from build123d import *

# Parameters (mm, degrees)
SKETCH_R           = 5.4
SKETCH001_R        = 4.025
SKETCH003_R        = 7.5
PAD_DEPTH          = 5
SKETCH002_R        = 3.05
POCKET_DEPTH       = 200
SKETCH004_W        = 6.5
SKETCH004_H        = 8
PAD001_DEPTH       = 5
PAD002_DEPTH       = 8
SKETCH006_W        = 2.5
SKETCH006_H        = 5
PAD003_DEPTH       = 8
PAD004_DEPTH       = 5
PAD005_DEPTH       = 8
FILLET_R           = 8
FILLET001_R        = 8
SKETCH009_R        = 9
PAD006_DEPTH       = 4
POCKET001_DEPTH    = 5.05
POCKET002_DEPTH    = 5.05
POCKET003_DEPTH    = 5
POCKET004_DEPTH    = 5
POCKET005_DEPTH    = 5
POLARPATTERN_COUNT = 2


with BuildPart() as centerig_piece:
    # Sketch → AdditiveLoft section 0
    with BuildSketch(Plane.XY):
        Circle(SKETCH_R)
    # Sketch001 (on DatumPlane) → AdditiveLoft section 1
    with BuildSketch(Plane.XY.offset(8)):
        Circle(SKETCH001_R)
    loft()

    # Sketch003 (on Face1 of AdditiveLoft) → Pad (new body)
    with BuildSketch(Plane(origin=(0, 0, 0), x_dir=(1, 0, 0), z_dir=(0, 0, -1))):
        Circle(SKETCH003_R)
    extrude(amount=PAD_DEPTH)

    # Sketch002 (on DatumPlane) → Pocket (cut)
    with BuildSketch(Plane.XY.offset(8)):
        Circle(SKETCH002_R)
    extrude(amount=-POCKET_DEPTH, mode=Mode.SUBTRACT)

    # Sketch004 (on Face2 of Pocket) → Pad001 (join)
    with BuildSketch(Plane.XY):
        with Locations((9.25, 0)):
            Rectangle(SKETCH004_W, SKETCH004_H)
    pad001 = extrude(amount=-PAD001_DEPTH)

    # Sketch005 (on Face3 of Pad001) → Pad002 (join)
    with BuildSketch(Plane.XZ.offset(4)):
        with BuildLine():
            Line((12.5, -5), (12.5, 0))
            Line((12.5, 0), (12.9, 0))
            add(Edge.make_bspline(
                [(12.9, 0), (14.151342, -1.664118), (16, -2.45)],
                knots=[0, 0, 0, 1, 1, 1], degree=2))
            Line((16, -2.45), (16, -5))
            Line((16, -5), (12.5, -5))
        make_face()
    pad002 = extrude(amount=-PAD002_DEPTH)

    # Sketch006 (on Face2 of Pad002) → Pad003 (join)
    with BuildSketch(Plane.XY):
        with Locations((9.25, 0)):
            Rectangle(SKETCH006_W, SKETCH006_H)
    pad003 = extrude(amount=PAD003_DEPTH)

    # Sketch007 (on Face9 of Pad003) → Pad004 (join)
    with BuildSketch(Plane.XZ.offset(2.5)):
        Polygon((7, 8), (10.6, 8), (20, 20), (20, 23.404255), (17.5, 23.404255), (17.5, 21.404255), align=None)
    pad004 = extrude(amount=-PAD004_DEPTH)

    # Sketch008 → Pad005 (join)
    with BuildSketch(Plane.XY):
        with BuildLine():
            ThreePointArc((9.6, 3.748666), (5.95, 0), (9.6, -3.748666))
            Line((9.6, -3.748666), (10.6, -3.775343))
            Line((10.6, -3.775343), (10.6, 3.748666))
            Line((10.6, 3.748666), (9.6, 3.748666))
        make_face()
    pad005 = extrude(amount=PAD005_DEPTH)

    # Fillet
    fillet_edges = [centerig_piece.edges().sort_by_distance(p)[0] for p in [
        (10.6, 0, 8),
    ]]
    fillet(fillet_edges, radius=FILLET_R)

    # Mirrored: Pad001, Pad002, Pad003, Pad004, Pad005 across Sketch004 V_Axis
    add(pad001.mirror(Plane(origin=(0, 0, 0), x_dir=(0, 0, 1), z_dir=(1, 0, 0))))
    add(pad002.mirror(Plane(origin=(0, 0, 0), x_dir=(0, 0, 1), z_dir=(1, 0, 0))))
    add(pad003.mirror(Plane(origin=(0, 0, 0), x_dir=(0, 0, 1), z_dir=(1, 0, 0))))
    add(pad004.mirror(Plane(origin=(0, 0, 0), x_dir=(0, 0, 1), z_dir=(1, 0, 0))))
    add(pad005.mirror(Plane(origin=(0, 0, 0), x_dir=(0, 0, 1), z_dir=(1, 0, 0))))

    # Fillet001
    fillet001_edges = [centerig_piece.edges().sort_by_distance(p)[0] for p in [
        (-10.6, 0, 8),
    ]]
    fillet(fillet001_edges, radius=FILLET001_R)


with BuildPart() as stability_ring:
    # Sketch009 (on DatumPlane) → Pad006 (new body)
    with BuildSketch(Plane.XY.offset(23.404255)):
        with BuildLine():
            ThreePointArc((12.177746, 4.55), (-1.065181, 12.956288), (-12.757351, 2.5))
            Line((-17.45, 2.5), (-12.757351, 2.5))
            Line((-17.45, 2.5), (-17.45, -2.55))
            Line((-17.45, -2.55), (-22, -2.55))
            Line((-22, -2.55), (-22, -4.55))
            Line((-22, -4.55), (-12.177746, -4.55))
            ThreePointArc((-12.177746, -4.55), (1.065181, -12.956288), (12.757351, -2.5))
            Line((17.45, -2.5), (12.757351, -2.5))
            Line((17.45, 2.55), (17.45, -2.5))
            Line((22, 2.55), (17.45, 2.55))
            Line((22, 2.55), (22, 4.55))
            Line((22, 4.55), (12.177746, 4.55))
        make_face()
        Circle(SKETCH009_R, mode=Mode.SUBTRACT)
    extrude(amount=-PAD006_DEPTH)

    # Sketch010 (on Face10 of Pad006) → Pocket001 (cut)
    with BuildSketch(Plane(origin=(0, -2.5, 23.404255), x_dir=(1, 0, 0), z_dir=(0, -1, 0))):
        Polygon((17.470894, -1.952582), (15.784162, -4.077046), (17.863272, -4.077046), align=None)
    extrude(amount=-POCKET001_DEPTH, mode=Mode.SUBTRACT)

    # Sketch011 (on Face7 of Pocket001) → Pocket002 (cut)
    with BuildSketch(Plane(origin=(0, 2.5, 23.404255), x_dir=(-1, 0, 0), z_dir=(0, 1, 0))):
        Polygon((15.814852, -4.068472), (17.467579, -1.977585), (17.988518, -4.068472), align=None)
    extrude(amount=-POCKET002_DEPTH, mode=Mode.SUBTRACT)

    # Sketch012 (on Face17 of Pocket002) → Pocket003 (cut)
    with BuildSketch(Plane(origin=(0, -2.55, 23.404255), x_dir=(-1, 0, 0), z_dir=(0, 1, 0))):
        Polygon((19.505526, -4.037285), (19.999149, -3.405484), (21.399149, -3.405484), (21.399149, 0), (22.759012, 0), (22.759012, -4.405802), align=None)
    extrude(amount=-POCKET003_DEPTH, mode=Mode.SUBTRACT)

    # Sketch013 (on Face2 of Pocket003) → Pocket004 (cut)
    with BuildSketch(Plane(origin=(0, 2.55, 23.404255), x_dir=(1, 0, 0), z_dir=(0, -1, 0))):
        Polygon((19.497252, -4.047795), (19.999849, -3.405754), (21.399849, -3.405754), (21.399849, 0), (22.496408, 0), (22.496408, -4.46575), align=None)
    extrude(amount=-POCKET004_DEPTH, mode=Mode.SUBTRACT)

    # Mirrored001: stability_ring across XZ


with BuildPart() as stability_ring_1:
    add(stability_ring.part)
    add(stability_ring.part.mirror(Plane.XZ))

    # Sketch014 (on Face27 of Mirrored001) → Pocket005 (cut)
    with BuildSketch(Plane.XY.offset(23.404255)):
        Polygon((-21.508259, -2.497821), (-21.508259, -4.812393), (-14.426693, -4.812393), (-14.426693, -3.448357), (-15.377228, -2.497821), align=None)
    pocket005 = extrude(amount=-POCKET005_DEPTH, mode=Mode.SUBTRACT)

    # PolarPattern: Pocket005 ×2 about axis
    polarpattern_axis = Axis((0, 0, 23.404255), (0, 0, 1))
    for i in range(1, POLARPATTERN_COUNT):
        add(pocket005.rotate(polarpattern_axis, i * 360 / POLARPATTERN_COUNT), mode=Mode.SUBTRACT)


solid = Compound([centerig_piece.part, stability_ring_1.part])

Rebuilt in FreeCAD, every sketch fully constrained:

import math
import FreeCAD as App
import Part
import Sketcher


def edges_at(feature, points):
    """Names of the edges that pass closest to the given points."""
    edges = feature.Shape.Edges
    near = lambda p: min(range(len(edges)), key=lambda i: edges[i].distToShape(Part.Vertex(*p))[0])
    return sorted({f"Edge{near(p) + 1}" for p in points})


def add_polygon(sketch, points):
    """Adds a closed chain of lines whose ends are joined by coincident constraints."""
    first, n = sketch.GeometryCount, len(points)
    for a, b in zip(points, points[1:] + points[:1]):
        sketch.addGeometry(Part.LineSegment(App.Vector(*a, 0), App.Vector(*b, 0)), False)
    for i in range(n):
        sketch.addConstraint(Sketcher.Constraint("Coincident", first + i, 2, first + (i + 1) % n, 1))

doc = App.newDocument("Part")
params = doc.addObject("Spreadsheet::Sheet", "Params")
for row, (alias, value) in enumerate([
    ("sketch1_diameter", "10.8 mm"),
    ("sketch2_diameter", "8.05 mm"),
    ("sketch3_diameter", "15 mm"),
    ("pad1_length", "5 mm"),
    ("sketch4_diameter", "6.1 mm"),
    ("pocket1_length", "200 mm"),
    ("sketch5_height", "8 mm"),
    ("sketch5_width", "6.5 mm"),
    ("pad2_length", "5 mm"),
    ("sketch6_height", "5 mm"),
    ("sketch6_width", "3.5 mm"),
    ("pad3_length", "8 mm"),
    ("sketch7_height", "5 mm"),
    ("sketch7_width", "2.5 mm"),
    ("pad4_length", "8 mm"),
    ("sketch8_height", "2 mm"),
    ("sketch8_width", "3.6 mm"),
    ("sketch8_width2", "2.5 mm"),
    ("pad5_length", "5 mm"),
    ("sketch9_width", "1 mm"),
    ("sketch9_radius", "3.75 mm"),
    ("pad6_length", "8 mm"),
    ("fillet_radius", "8 mm"),
    ("fillet2_radius", "8 mm"),
    ("sketch10_diameter", "18 mm"),
    ("sketch10_radius", "13 mm"),
    ("sketch10_height", "2 mm"),
    ("sketch10_width", "4.55 mm"),
    ("sketch10_height2", "5.05 mm"),
    ("pad7_length", "4 mm"),
    ("pocket2_length", "5.05 mm"),
    ("pocket3_length", "5.05 mm"),
    ("sketch13_width", "1.4 mm"),
    ("pocket4_length", "5 mm"),
    ("sketch14_width", "1.4 mm"),
    ("pocket5_length", "5 mm"),
    ("pocket6_length", "5 mm"),
], start=1):
    params.set(f"A{row}", alias)
    params.set(f"B{row}", "=" + value)
    params.setAlias(f"B{row}", alias)

body = doc.addObject("PartDesign::Body", "Body")

sketch1 = doc.addObject("Sketcher::SketchObject", "Sketch")
body.addObject(sketch1)
sketch1.AttachmentSupport = (doc.XY_Plane, [""])
sketch1.MapMode = "FlatFace"
sketch1.addGeometry(Part.Circle(App.Vector(0, 0, 0), App.Vector(0, 0, 1), 5), False)
sketch1.addConstraint([
    Sketcher.Constraint("Coincident", 0, 3, -1, 1),
    Sketcher.Constraint("Diameter", 0, 10.8),
])
sketch1.setExpression("Constraints[1]", "Params.sketch1_diameter")

sketch2 = doc.addObject("Sketcher::SketchObject", "Sketch001")
body.addObject(sketch2)
sketch2.AttachmentSupport = (doc.XY_Plane, [""])
sketch2.MapMode = "FlatFace"
sketch2.AttachmentOffset = App.Placement(App.Vector(0, 0, 8), App.Rotation())
sketch2.addGeometry(Part.Circle(App.Vector(0, 0, 0), App.Vector(0, 0, 1), 4), False)
sketch2.addConstraint([
    Sketcher.Constraint("Coincident", 0, 3, -1, 1),
    Sketcher.Constraint("Diameter", 0, 8.05),
])
sketch2.setExpression("Constraints[1]", "Params.sketch2_diameter")

additiveloft = doc.addObject("PartDesign::AdditiveLoft", "AdditiveLoft")
body.addObject(additiveloft)
additiveloft.Profile = sketch1
additiveloft.Sections = [sketch2]

sketch3 = doc.addObject("Sketcher::SketchObject", "Sketch002")
body.addObject(sketch3)
sketch3.AttachmentSupport = (doc.XY_Plane, [""])
sketch3.MapMode = "FlatFace"
sketch3.addGeometry(Part.Circle(App.Vector(0, 0, 0), App.Vector(0, 0, 1), 8), False)
sketch3.addConstraint([
    Sketcher.Constraint("Coincident", 0, 3, -1, 1),
    Sketcher.Constraint("Diameter", 0, 15.0),
])
sketch3.setExpression("Constraints[1]", "Params.sketch3_diameter")
pad1 = doc.addObject("PartDesign::Pad", "Pad")
body.addObject(pad1)
pad1.Profile = sketch3
pad1.setExpression("Length", "Params.pad1_length")
pad1.Reversed = True

sketch4 = doc.addObject("Sketcher::SketchObject", "Sketch003")
body.addObject(sketch4)
sketch4.AttachmentSupport = (doc.XY_Plane, [""])
sketch4.MapMode = "FlatFace"
sketch4.AttachmentOffset = App.Placement(App.Vector(0, 0, 8), App.Rotation())
sketch4.addGeometry(Part.Circle(App.Vector(0, 0, 0), App.Vector(0, 0, 1), 3), False)
sketch4.addConstraint([
    Sketcher.Constraint("Coincident", 0, 3, -1, 1),
    Sketcher.Constraint("Diameter", 0, 6.1),
])
sketch4.setExpression("Constraints[1]", "Params.sketch4_diameter")
pocket1 = doc.addObject("PartDesign::Pocket", "Pocket")
body.addObject(pocket1)
pocket1.Profile = sketch4
pocket1.setExpression("Length", "Params.pocket1_length")

sketch5 = doc.addObject("Sketcher::SketchObject", "Sketch004")
body.addObject(sketch5)
sketch5.AttachmentSupport = (doc.XY_Plane, [""])
sketch5.MapMode = "FlatFace"
add_polygon(sketch5, [(6, 4), (6, -4), (12, -4), (12, 4)])
sketch5.addConstraint([
    Sketcher.Constraint("Vertical", 0),
    Sketcher.Constraint("Horizontal", 1),
    Sketcher.Constraint("Vertical", 2),
    Sketcher.Constraint("Horizontal", 3),
    Sketcher.Constraint("DistanceY", 0, 2, 0, 1, 8.0),
    Sketcher.Constraint("DistanceX", 1, 1, 1, 2, 6.5),
    Sketcher.Constraint("DistanceX", -1, 1, 0, 2, 6.0),
    Sketcher.Constraint("DistanceY", 0, 2, -1, 1, 4.0),
])
sketch5.setExpression("Constraints[8]", "Params.sketch5_height")
sketch5.setExpression("Constraints[9]", "Params.sketch5_width")
pad2 = doc.addObject("PartDesign::Pad", "Pad001")
body.addObject(pad2)
pad2.Profile = sketch5
pad2.setExpression("Length", "Params.pad2_length")
pad2.Reversed = True

sketch6 = doc.addObject("Sketcher::SketchObject", "Sketch005")
body.addObject(sketch6)
sketch6.AttachmentSupport = (doc.XZ_Plane, [""])
sketch6.MapMode = "FlatFace"
sketch6.AttachmentOffset = App.Placement(App.Vector(0, 0, 4), App.Rotation())
sketch6.addGeometry([
    Part.LineSegment(App.Vector(12.5, 0, 0), App.Vector(12.5, -5, 0)),
    Part.LineSegment(App.Vector(12.5, -5, 0), App.Vector(16, -5, 0)),
    Part.LineSegment(App.Vector(16, -5, 0), App.Vector(16, -2.45, 0)),
    Part.BSplineCurve([App.Vector(12.9, 0, 0), App.Vector(14.151342, -1.664118, 0), App.Vector(16, -2.45, 0)], [3, 3], [0, 1], False, 2, [1, 1, 1], False),
    Part.LineSegment(App.Vector(12.9, 0, 0), App.Vector(12.5, 0, 0)),
], False)
sketch6.addConstraint([
    Sketcher.Constraint("Block", 3),
    Sketcher.Constraint("Coincident", 0, 2, 1, 1),
    Sketcher.Constraint("Coincident", 1, 2, 2, 1),
    Sketcher.Constraint("Coincident", 2, 2, 3, 2),
    Sketcher.Constraint("Coincident", 3, 1, 4, 1),
    Sketcher.Constraint("Coincident", 4, 2, 0, 1),
    Sketcher.Constraint("Vertical", 0),
    Sketcher.Constraint("Horizontal", 1),
    Sketcher.Constraint("Vertical", 2),
    Sketcher.Constraint("Horizontal", 4),
    Sketcher.Constraint("DistanceY", 0, 2, 0, 1, 5.0),
    Sketcher.Constraint("DistanceX", 1, 1, 1, 2, 3.5),
])
sketch6.setExpression("Constraints[10]", "Params.sketch6_height")
sketch6.setExpression("Constraints[11]", "Params.sketch6_width")
pad3 = doc.addObject("PartDesign::Pad", "Pad002")
body.addObject(pad3)
pad3.Profile = sketch6
pad3.setExpression("Length", "Params.pad3_length")
pad3.Reversed = True

sketch7 = doc.addObject("Sketcher::SketchObject", "Sketch006")
body.addObject(sketch7)
sketch7.AttachmentSupport = (doc.XY_Plane, [""])
sketch7.MapMode = "FlatFace"
add_polygon(sketch7, [(8, 2.5), (8, -2.5), (10.5, -2.5), (10.5, 2.5)])
sketch7.addConstraint([
    Sketcher.Constraint("Vertical", 0),
    Sketcher.Constraint("Horizontal", 1),
    Sketcher.Constraint("Vertical", 2),
    Sketcher.Constraint("Horizontal", 3),
    Sketcher.Constraint("DistanceY", 0, 2, 0, 1, 5.0),
    Sketcher.Constraint("DistanceX", 1, 1, 1, 2, 2.5),
    Sketcher.Constraint("DistanceX", -1, 1, 0, 2, 8.0),
    Sketcher.Constraint("DistanceY", 0, 2, -1, 1, 2.5),
])
sketch7.setExpression("Constraints[8]", "Params.sketch7_height")
sketch7.setExpression("Constraints[9]", "Params.sketch7_width")
pad4 = doc.addObject("PartDesign::Pad", "Pad003")
body.addObject(pad4)
pad4.Profile = sketch7
pad4.setExpression("Length", "Params.pad4_length")

sketch8 = doc.addObject("Sketcher::SketchObject", "Sketch007")
body.addObject(sketch8)
sketch8.AttachmentSupport = (doc.XZ_Plane, [""])
sketch8.MapMode = "FlatFace"
sketch8.AttachmentOffset = App.Placement(App.Vector(0, 0, 2.5), App.Rotation())
add_polygon(sketch8, [(7, 8), (10.6, 8), (20, 20), (20, 23.4), (17.5, 23.4), (17.5, 21.4)])
sketch8.addConstraint([
    Sketcher.Constraint("Horizontal", 0),
    Sketcher.Constraint("Vertical", 2),
    Sketcher.Constraint("Horizontal", 3),
    Sketcher.Constraint("Vertical", 4),
    Sketcher.Constraint("Parallel", 1, 5),
    Sketcher.Constraint("DistanceY", 4, 2, 4, 1, 2.0),
    Sketcher.Constraint("DistanceX", 0, 1, 0, 2, 3.6),
    Sketcher.Constraint("DistanceX", 3, 2, 3, 1, 2.5),
    Sketcher.Constraint("DistanceY", -1, 1, 0, 2, 8.0),
    Sketcher.Constraint("DistanceX", -1, 1, 1, 2, 20.0),
    Sketcher.Constraint("DistanceY", -1, 1, 1, 2, 20.0),
    Sketcher.Constraint("DistanceX", -1, 1, 5, 2, 7.0),
])
sketch8.setExpression("Constraints[11]", "Params.sketch8_height")
sketch8.setExpression("Constraints[12]", "Params.sketch8_width")
sketch8.setExpression("Constraints[13]", "Params.sketch8_width2")
pad5 = doc.addObject("PartDesign::Pad", "Pad004")
body.addObject(pad5)
pad5.Profile = sketch8
pad5.setExpression("Length", "Params.pad5_length")
pad5.Reversed = True

sketch9 = doc.addObject("Sketcher::SketchObject", "Sketch008")
body.addObject(sketch9)
sketch9.AttachmentSupport = (doc.XY_Plane, [""])
sketch9.MapMode = "FlatFace"
sketch9.addGeometry([
    Part.ArcOfCircle(Part.Circle(App.Vector(9.7, 0, 0), App.Vector(0, 0, 1), 3.7), math.radians(92), math.radians(268)),
    Part.LineSegment(App.Vector(9.6, -3.7, 0), App.Vector(10.6, -3.8, 0)),
    Part.LineSegment(App.Vector(10.6, -3.8, 0), App.Vector(10.6, 3.7, 0)),
    Part.LineSegment(App.Vector(10.6, 3.7, 0), App.Vector(9.6, 3.7, 0)),
], False)
sketch9.addConstraint([
    Sketcher.Constraint("Tangent", 0, 2, 1, 1),
    Sketcher.Constraint("Coincident", 1, 2, 2, 1),
    Sketcher.Constraint("Coincident", 2, 2, 3, 1),
    Sketcher.Constraint("Coincident", 3, 2, 0, 1),
    Sketcher.Constraint("Vertical", 2),
    Sketcher.Constraint("Horizontal", 3),
    Sketcher.Constraint("Symmetric", 0, 2, 3, 2, -1),
    Sketcher.Constraint("DistanceX", 3, 2, 3, 1, 1.0),
    Sketcher.Constraint("Radius", 0, 3.75),
    Sketcher.Constraint("DistanceX", -1, 1, 0, 3, 9.7),
    Sketcher.Constraint("DistanceX", -1, 1, 0, 2, 9.6),
])
sketch9.setExpression("Constraints[7]", "Params.sketch9_width")
sketch9.setExpression("Constraints[8]", "Params.sketch9_radius")
pad6 = doc.addObject("PartDesign::Pad", "Pad005")
body.addObject(pad6)
pad6.Profile = sketch9
pad6.setExpression("Length", "Params.pad6_length")
doc.recompute()

fillet = doc.addObject("PartDesign::Fillet", "Fillet")
body.addObject(fillet)
fillet.Base = (pad6, edges_at(pad6, [(10.6, 0, 8)]))
fillet.setExpression("Radius", "Params.fillet_radius")
doc.recompute()

mirrored = doc.addObject("PartDesign::Mirrored", "Mirrored")
body.addObject(mirrored)
mirrored.Originals = [pad2, pad3, pad4, pad5, pad6]
mirrored.MirrorPlane = (doc.YZ_Plane, [""])
body.Tip = mirrored
doc.recompute()

fillet2 = doc.addObject("PartDesign::Fillet", "Fillet001")
body.addObject(fillet2)
fillet2.Base = (mirrored, edges_at(mirrored, [(-10.6, 0, 8)]))
fillet2.setExpression("Radius", "Params.fillet2_radius")
body2 = doc.addObject("PartDesign::Body", "Body001")

sketch10 = doc.addObject("Sketcher::SketchObject", "Sketch009")
body2.addObject(sketch10)
sketch10.AttachmentSupport = (doc.getObject("XY_Plane001"), [""])
sketch10.MapMode = "FlatFace"
sketch10.AttachmentOffset = App.Placement(App.Vector(0, 0, 23.404255), App.Rotation())
sketch10.addGeometry([
    Part.ArcOfCircle(Part.Circle(App.Vector(0, 0, 0), App.Vector(0, 0, 1), 13), math.radians(20), math.radians(169)),
    Part.LineSegment(App.Vector(-12.8, 2.5, 0), App.Vector(-17.4, 2.5, 0)),
    Part.LineSegment(App.Vector(-17.4, 2.5, 0), App.Vector(-17.4, -2.5, 0)),
    Part.LineSegment(App.Vector(-17.4, -2.5, 0), App.Vector(-22, -2.5, 0)),
    Part.LineSegment(App.Vector(-22, -2.5, 0), App.Vector(-22, -4.5, 0)),
    Part.LineSegment(App.Vector(-22, -4.5, 0), App.Vector(-12.2, -4.5, 0)),
    Part.ArcOfCircle(Part.Circle(App.Vector(0, 0, 0), App.Vector(0, 0, 1), 13), math.radians(-160), math.radians(-11)),
    Part.LineSegment(App.Vector(12.8, -2.5, 0), App.Vector(17.4, -2.5, 0)),
    Part.LineSegment(App.Vector(17.4, -2.5, 0), App.Vector(17.4, 2.5, 0)),
    Part.LineSegment(App.Vector(17.4, 2.5, 0), App.Vector(22, 2.5, 0)),
    Part.LineSegment(App.Vector(22, 2.5, 0), App.Vector(22, 4.5, 0)),
    Part.LineSegment(App.Vector(22, 4.5, 0), App.Vector(12.2, 4.5, 0)),
    Part.Circle(App.Vector(0, 0, 0), App.Vector(0, 0, 1), 9),
], False)
sketch10.addConstraint([
    Sketcher.Constraint("Coincident", 0, 2, 1, 1),
    Sketcher.Constraint("Coincident", 1, 2, 2, 1),
    Sketcher.Constraint("Coincident", 2, 2, 3, 1),
    Sketcher.Constraint("Coincident", 3, 2, 4, 1),
    Sketcher.Constraint("Coincident", 4, 2, 5, 1),
    Sketcher.Constraint("Coincident", 5, 2, 6, 1),
    Sketcher.Constraint("Coincident", 6, 2, 7, 1),
    Sketcher.Constraint("Coincident", 7, 2, 8, 1),
    Sketcher.Constraint("Coincident", 8, 2, 9, 1),
    Sketcher.Constraint("Coincident", 9, 2, 10, 1),
    Sketcher.Constraint("Coincident", 10, 2, 11, 1),
    Sketcher.Constraint("Coincident", 11, 2, 0, 1),
    Sketcher.Constraint("Horizontal", 1),
    Sketcher.Constraint("Vertical", 2),
    Sketcher.Constraint("Horizontal", 3),
    Sketcher.Constraint("Vertical", 4),
    Sketcher.Constraint("Horizontal", 5),
    Sketcher.Constraint("Horizontal", 7),
    Sketcher.Constraint("Vertical", 8),
    Sketcher.Constraint("Horizontal", 9),
    Sketcher.Constraint("Vertical", 10),
    Sketcher.Constraint("Horizontal", 11),
    Sketcher.Constraint("Coincident", 0, 3, -1, 1),
    Sketcher.Constraint("Coincident", 6, 3, -1, 1),
    Sketcher.Constraint("Coincident", 12, 3, -1, 1),
    Sketcher.Constraint("Equal", 0, 6),
    Sketcher.Constraint("Symmetric", 1, 2, 7, 2, -1, 1),
    Sketcher.Constraint("Symmetric", 3, 2, 9, 2, -1, 1),
    Sketcher.Constraint("Equal", 5, 11),
    Sketcher.Constraint("Diameter", 12, 18.0),
    Sketcher.Constraint("Radius", 0, 13.0),
    Sketcher.Constraint("DistanceY", 4, 2, 4, 1, 2.0),
    Sketcher.Constraint("DistanceX", 3, 2, -1, 1, 22.0),
    Sketcher.Constraint("DistanceY", 6, 2, 0, 2, 5.0),
    Sketcher.Constraint("DistanceX", 3, 2, 3, 1, 4.55),
    Sketcher.Constraint("DistanceY", 2, 2, 2, 1, 5.05),
])
sketch10.setExpression("Constraints[29]", "Params.sketch10_diameter")
sketch10.setExpression("Constraints[30]", "Params.sketch10_radius")
sketch10.setExpression("Constraints[31]", "Params.sketch10_height")
sketch10.setExpression("Constraints[34]", "Params.sketch10_width")
sketch10.setExpression("Constraints[35]", "Params.sketch10_height2")
pad7 = doc.addObject("PartDesign::Pad", "Pad006")
body2.addObject(pad7)
pad7.Profile = sketch10
pad7.setExpression("Length", "Params.pad7_length")
pad7.Reversed = True

sketch11 = doc.addObject("Sketcher::SketchObject", "Sketch010")
body2.addObject(sketch11)
sketch11.AttachmentSupport = (doc.getObject("XZ_Plane001"), [""])
sketch11.MapMode = "FlatFace"
sketch11.AttachmentOffset = App.Placement(App.Vector(0, 0, 2.5), App.Rotation())
add_polygon(sketch11, [(17.5, 21.5), (15.8, 19.3), (17.9, 19.3)])
sketch11.addConstraint([
    Sketcher.Constraint("Horizontal", 1),
    Sketcher.Constraint("DistanceX", 1, 1, 1, 2, 2.07911),
    Sketcher.Constraint("Distance", 0, 2.712639),
    Sketcher.Constraint("DistanceY", -1, 1, 0, 2, 19.327209),
    Sketcher.Constraint("DistanceX", -1, 1, 1, 2, 17.863272),
    Sketcher.Constraint("Distance", 2, 2.160395),
])
pocket2 = doc.addObject("PartDesign::Pocket", "Pocket001")
body2.addObject(pocket2)
pocket2.Profile = sketch11
pocket2.setExpression("Length", "Params.pocket2_length")

sketch12 = doc.addObject("Sketcher::SketchObject", "Sketch011")
body2.addObject(sketch12)
sketch12.AttachmentSupport = (doc.getObject("XZ_Plane001"), [""])
sketch12.MapMode = "FlatFace"
sketch12.AttachmentOffset = App.Placement(App.Vector(0, 0, -2.5), App.Rotation())
add_polygon(sketch12, [(-17.5, 21.4), (-15.8, 19.3), (-18, 19.3)])
sketch12.addConstraint([
    Sketcher.Constraint("Horizontal", 1),
    Sketcher.Constraint("DistanceX", 1, 2, 1, 1, 2.173666),
    Sketcher.Constraint("DistanceX", 2, 2, -1, 1, 17.467579),
    Sketcher.Constraint("DistanceY", -1, 1, 2, 2, 21.42667),
    Sketcher.Constraint("DistanceX", 1, 2, 2, 2, 0.520939),
    Sketcher.Constraint("Distance", 0, 2.665204),
])
pocket3 = doc.addObject("PartDesign::Pocket", "Pocket002")
body2.addObject(pocket3)
pocket3.Profile = sketch12
pocket3.setExpression("Length", "Params.pocket3_length")
pocket3.Reversed = True

sketch13 = doc.addObject("Sketcher::SketchObject", "Sketch012")
body2.addObject(sketch13)
sketch13.AttachmentSupport = (doc.getObject("XZ_Plane001"), [""])
sketch13.MapMode = "FlatFace"
sketch13.AttachmentOffset = App.Placement(App.Vector(0, 0, 2.55), App.Rotation())
add_polygon(sketch13, [(-20, 20), (-19.5, 19.4), (-22.8, 19), (-22.8, 23.4), (-21.4, 23.4), (-21.4, 20)])
sketch13.addConstraint([
    Sketcher.Constraint("Vertical", 2),
    Sketcher.Constraint("Horizontal", 3),
    Sketcher.Constraint("Vertical", 4),
    Sketcher.Constraint("Horizontal", 5),
    Sketcher.Constraint("DistanceX", 5, 1, 5, 2, 1.4),
    Sketcher.Constraint("DistanceY", 2, 1, 2, 2, 4.405802),
    Sketcher.Constraint("DistanceY", 0, 2, 4, 2, 0.631801),
    Sketcher.Constraint("Distance", 0, 0.801771),
    Sketcher.Constraint("Distance", 1, 3.27429),
    Sketcher.Constraint("DistanceX", 3, 1, 3, 2, 1.359863),
    Sketcher.Constraint("DistanceY", -1, 1, 0, 2, 19.36697),
    Sketcher.Constraint("DistanceX", 1, 2, -1, 1, 22.759012),
])
sketch13.setExpression("Constraints[10]", "Params.sketch13_width")
pocket4 = doc.addObject("PartDesign::Pocket", "Pocket003")
body2.addObject(pocket4)
pocket4.Profile = sketch13
pocket4.setExpression("Length", "Params.pocket4_length")
pocket4.Reversed = True

sketch14 = doc.addObject("Sketcher::SketchObject", "Sketch013")
body2.addObject(sketch14)
sketch14.AttachmentSupport = (doc.getObject("XZ_Plane001"), [""])
sketch14.MapMode = "FlatFace"
sketch14.AttachmentOffset = App.Placement(App.Vector(0, 0, -2.55), App.Rotation())
add_polygon(sketch14, [(20, 20), (19.5, 19.4), (22.5, 18.9), (22.5, 23.4), (21.4, 23.4), (21.4, 20)])
sketch14.addConstraint([
    Sketcher.Constraint("Vertical", 2),
    Sketcher.Constraint("Horizontal", 3),
    Sketcher.Constraint("Vertical", 4),
    Sketcher.Constraint("Horizontal", 5),
    Sketcher.Constraint("DistanceX", 5, 2, 5, 1, 1.4),
    Sketcher.Constraint("DistanceX", 3, 2, 3, 1, 1.096559),
    Sketcher.Constraint("DistanceY", 2, 1, 2, 2, 4.46575),
    Sketcher.Constraint("DistanceY", -1, 1, 4, 2, 19.998501),
    Sketcher.Constraint("Distance", 1, 3.028139),
    Sketcher.Constraint("DistanceY", 4, 2, 4, 1, 3.405754),
    Sketcher.Constraint("DistanceX", -1, 1, 0, 2, 19.497252),
    Sketcher.Constraint("DistanceY", -1, 1, 0, 2, 19.35646),
])
sketch14.setExpression("Constraints[10]", "Params.sketch14_width")
pocket5 = doc.addObject("PartDesign::Pocket", "Pocket004")
body2.addObject(pocket5)
pocket5.Profile = sketch14
pocket5.setExpression("Length", "Params.pocket5_length")
body3 = doc.addObject("PartDesign::Body", "Body002")
doc.recompute()

body3.BaseFeature = body2
doc.recompute()

mirroring = doc.addObject("Part::Mirroring", "Mirroring")
mirroring.Source = body2
mirroring.Base = App.Vector(0, 0, 0)
mirroring.Normal = App.Vector(0, -1, 0)
body4 = doc.addObject("PartDesign::Body", "Body003")
body4.BaseFeature = mirroring
boolean = doc.addObject("PartDesign::Boolean", "Boolean")
body3.addObject(boolean)
boolean.Type = "Fuse"
boolean.addObjects([body4])
doc.recompute()

sketch15 = doc.addObject("Sketcher::SketchObject", "Sketch014")
body3.addObject(sketch15)
sketch15.AttachmentSupport = (doc.getObject("XY_Plane002"), [""])
sketch15.MapMode = "FlatFace"
sketch15.AttachmentOffset = App.Placement(App.Vector(0, 0, 23.404255), App.Rotation())
add_polygon(sketch15, [(-21.5, -2.5), (-21.5, -4.8), (-14.4, -4.8), (-14.4, -3.4), (-15.4, -2.5)])
sketch15.addConstraint([
    Sketcher.Constraint("Vertical", 0),
    Sketcher.Constraint("Horizontal", 1),
    Sketcher.Constraint("Vertical", 2),
    Sketcher.Constraint("Horizontal", 4),
    Sketcher.Constraint("DistanceX", 4, 2, 4, 1, 6.131031),
    Sketcher.Constraint("Distance", 3, 1.34426),
    Sketcher.Constraint("DistanceX", 1, 1, 1, 2, 7.081566),
    Sketcher.Constraint("DistanceY", 0, 2, 0, 1, 2.314572),
    Sketcher.Constraint("DistanceX", 0, 2, -1, 1, 21.508259),
    Sketcher.Constraint("DistanceY", 3, 2, -1, 1, 2.497821),
])
pocket6 = doc.addObject("PartDesign::Pocket", "Pocket005")
body3.addObject(pocket6)
pocket6.Profile = sketch15
pocket6.setExpression("Length", "Params.pocket6_length")
doc.recompute()

polarpattern = doc.addObject("PartDesign::PolarPattern", "PolarPattern")
body3.addObject(polarpattern)
polarpattern.Originals = [pocket6]
polarpattern.Axis = (doc.getObject("Z_Axis002"), [""])
polarpattern.Angle = 360
polarpattern.Occurrences = 2
body3.Tip = polarpattern
mirroring.Visibility = False

doc.recompute()
